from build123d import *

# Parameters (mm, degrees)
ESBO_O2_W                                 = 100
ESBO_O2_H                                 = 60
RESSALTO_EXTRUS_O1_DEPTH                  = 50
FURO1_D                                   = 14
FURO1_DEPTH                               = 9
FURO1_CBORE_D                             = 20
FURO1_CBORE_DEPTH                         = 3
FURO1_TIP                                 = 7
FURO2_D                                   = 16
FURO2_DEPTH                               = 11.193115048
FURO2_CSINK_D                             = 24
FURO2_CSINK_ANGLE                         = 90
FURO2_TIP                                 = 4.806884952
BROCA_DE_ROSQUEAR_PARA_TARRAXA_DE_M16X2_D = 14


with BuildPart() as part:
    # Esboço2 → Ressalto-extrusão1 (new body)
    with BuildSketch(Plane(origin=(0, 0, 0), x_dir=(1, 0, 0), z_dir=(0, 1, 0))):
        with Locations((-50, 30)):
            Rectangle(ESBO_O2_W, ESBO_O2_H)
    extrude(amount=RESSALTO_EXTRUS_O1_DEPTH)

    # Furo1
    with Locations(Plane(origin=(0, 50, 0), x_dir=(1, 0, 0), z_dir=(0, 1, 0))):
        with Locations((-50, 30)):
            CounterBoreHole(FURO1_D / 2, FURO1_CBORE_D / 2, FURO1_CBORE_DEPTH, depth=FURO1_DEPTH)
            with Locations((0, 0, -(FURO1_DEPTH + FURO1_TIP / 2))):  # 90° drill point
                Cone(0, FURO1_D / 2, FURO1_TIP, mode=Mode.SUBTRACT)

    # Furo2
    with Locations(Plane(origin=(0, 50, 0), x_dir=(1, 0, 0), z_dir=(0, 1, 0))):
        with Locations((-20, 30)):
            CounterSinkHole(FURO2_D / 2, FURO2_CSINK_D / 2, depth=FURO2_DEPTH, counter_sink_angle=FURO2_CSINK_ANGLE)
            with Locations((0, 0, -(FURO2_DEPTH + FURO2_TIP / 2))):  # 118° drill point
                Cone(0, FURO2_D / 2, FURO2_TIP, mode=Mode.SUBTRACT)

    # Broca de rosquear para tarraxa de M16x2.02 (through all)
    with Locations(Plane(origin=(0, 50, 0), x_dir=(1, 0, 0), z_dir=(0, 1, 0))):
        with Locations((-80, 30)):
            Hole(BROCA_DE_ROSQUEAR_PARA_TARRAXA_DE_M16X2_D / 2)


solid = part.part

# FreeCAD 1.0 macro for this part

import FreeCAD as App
import Part
import Sketcher
from FreeCAD import Vector
Q = App.Units.Quantity


def add_polygon(sketch, points):
    """Adds a closed chain of lines whose ends are joined by coincident constraints."""
    first, n = sketch.GeometryCount, len(points)
    for a, b in zip(points, points[1:] + points[:1]):
        sketch.addGeometry(Part.LineSegment(App.Vector(*a, 0), App.Vector(*b, 0)), False)
    for i in range(n):
        sketch.addConstraint(Sketcher.Constraint("Coincident", first + i, 2, first + (i + 1) % n, 1))

doc = App.newDocument("Part")
body = doc.addObject("PartDesign::Body", "Body")

sketch1 = body.newObject("Sketcher::SketchObject", "Sketch")
sketch1.AttachmentSupport = (doc.getObject("XZ_Plane"), [""])
sketch1.MapMode = "FlatFace"
add_polygon(sketch1, [(-100, -60), (-100, 0), (0, 0), (0, -60)])
sketch1.addConstraint(Sketcher.Constraint("Vertical", 0))
sketch1.addConstraint(Sketcher.Constraint("Horizontal", 1))
sketch1.addConstraint(Sketcher.Constraint("Vertical", 2))
sketch1.addConstraint(Sketcher.Constraint("Horizontal", 3))
sketch1.addConstraint(Sketcher.Constraint("Coincident", 1, 2, -1, 1))
sketch1.addConstraint(Sketcher.Constraint("DistanceX", 1, 1, 1, 2, Q("100 mm")))
sketch1.addConstraint(Sketcher.Constraint("DistanceY", 0, 1, 0, 2, Q("60 mm")))
pad1 = body.newObject("PartDesign::Pad", "Pad")
pad1.Profile = sketch1
pad1.Length = 50
pad1.Reversed = True

sketch2 = body.newObject("Sketcher::SketchObject", "Sketch001")
sketch2.AttachmentSupport = (doc.getObject("XZ_Plane"), [""])
sketch2.MapMode = "FlatFace"
sketch2.AttachmentOffset = App.Placement(Vector(0, 0, -50), App.Rotation())
sketch2.addGeometry(Part.Circle(Vector(-50, -30, 0), Vector(0, 0, 1), 7), False)
sketch2.addConstraint(Sketcher.Constraint("Diameter", 0, Q("14 mm")))
sketch2.addConstraint(Sketcher.Constraint("DistanceX", 0, 3, -1, 1, Q("50 mm")))
sketch2.addConstraint(Sketcher.Constraint("DistanceY", 0, 3, -1, 1, Q("30 mm")))
doc.recompute()
hole = body.newObject("PartDesign::Hole", "Hole")
hole.Profile = sketch2
hole.ThreadType = "None"
hole.Diameter = 14
hole.DepthType = "Dimension"
hole.Depth = 9
hole.DrillPoint = "Angled"
hole.DrillPointAngle = 90
hole.HoleCutType = "Counterbore"
hole.HoleCutDiameter = 20
hole.HoleCutDepth = 3
hole.Reversed = True

sketch3 = body.newObject("Sketcher::SketchObject", "Sketch002")
sketch3.AttachmentSupport = (doc.getObject("XZ_Plane"), [""])
sketch3.MapMode = "FlatFace"
sketch3.AttachmentOffset = App.Placement(Vector(0, 0, -50), App.Rotation())
sketch3.addGeometry(Part.Circle(Vector(-20, -30, 0), Vector(0, 0, 1), 8), False)
sketch3.addConstraint(Sketcher.Constraint("Diameter", 0, Q("16 mm")))
sketch3.addConstraint(Sketcher.Constraint("DistanceX", 0, 3, -1, 1, Q("20 mm")))
sketch3.addConstraint(Sketcher.Constraint("DistanceY", 0, 3, -1, 1, Q("30 mm")))
doc.recompute()
hole2 = body.newObject("PartDesign::Hole", "Hole001")
hole2.Profile = sketch3
hole2.ThreadType = "None"
hole2.Diameter = 16
hole2.DepthType = "Dimension"
hole2.Depth = 11.193115
hole2.DrillPoint = "Angled"
hole2.DrillPointAngle = 118
hole2.HoleCutType = "Countersink"
hole2.HoleCutDiameter = 24
hole2.HoleCutCountersinkAngle = 90
hole2.Reversed = True

sketch4 = body.newObject("Sketcher::SketchObject", "Sketch003")
sketch4.AttachmentSupport = (doc.getObject("XZ_Plane"), [""])
sketch4.MapMode = "FlatFace"
sketch4.AttachmentOffset = App.Placement(Vector(0, 0, -50), App.Rotation())
sketch4.addGeometry(Part.Circle(Vector(-80, -30, 0), Vector(0, 0, 1), 7), False)
sketch4.addConstraint(Sketcher.Constraint("Diameter", 0, Q("14 mm")))
sketch4.addConstraint(Sketcher.Constraint("DistanceX", 0, 3, -1, 1, Q("80 mm")))
sketch4.addConstraint(Sketcher.Constraint("DistanceY", 0, 3, -1, 1, Q("30 mm")))
doc.recompute()
hole3 = body.newObject("PartDesign::Hole", "Hole002")
hole3.Profile = sketch4
hole3.ThreadType = "None"
hole3.Diameter = 14
hole3.DepthType = "ThroughAll"
hole3.Reversed = True

doc.recompute()
